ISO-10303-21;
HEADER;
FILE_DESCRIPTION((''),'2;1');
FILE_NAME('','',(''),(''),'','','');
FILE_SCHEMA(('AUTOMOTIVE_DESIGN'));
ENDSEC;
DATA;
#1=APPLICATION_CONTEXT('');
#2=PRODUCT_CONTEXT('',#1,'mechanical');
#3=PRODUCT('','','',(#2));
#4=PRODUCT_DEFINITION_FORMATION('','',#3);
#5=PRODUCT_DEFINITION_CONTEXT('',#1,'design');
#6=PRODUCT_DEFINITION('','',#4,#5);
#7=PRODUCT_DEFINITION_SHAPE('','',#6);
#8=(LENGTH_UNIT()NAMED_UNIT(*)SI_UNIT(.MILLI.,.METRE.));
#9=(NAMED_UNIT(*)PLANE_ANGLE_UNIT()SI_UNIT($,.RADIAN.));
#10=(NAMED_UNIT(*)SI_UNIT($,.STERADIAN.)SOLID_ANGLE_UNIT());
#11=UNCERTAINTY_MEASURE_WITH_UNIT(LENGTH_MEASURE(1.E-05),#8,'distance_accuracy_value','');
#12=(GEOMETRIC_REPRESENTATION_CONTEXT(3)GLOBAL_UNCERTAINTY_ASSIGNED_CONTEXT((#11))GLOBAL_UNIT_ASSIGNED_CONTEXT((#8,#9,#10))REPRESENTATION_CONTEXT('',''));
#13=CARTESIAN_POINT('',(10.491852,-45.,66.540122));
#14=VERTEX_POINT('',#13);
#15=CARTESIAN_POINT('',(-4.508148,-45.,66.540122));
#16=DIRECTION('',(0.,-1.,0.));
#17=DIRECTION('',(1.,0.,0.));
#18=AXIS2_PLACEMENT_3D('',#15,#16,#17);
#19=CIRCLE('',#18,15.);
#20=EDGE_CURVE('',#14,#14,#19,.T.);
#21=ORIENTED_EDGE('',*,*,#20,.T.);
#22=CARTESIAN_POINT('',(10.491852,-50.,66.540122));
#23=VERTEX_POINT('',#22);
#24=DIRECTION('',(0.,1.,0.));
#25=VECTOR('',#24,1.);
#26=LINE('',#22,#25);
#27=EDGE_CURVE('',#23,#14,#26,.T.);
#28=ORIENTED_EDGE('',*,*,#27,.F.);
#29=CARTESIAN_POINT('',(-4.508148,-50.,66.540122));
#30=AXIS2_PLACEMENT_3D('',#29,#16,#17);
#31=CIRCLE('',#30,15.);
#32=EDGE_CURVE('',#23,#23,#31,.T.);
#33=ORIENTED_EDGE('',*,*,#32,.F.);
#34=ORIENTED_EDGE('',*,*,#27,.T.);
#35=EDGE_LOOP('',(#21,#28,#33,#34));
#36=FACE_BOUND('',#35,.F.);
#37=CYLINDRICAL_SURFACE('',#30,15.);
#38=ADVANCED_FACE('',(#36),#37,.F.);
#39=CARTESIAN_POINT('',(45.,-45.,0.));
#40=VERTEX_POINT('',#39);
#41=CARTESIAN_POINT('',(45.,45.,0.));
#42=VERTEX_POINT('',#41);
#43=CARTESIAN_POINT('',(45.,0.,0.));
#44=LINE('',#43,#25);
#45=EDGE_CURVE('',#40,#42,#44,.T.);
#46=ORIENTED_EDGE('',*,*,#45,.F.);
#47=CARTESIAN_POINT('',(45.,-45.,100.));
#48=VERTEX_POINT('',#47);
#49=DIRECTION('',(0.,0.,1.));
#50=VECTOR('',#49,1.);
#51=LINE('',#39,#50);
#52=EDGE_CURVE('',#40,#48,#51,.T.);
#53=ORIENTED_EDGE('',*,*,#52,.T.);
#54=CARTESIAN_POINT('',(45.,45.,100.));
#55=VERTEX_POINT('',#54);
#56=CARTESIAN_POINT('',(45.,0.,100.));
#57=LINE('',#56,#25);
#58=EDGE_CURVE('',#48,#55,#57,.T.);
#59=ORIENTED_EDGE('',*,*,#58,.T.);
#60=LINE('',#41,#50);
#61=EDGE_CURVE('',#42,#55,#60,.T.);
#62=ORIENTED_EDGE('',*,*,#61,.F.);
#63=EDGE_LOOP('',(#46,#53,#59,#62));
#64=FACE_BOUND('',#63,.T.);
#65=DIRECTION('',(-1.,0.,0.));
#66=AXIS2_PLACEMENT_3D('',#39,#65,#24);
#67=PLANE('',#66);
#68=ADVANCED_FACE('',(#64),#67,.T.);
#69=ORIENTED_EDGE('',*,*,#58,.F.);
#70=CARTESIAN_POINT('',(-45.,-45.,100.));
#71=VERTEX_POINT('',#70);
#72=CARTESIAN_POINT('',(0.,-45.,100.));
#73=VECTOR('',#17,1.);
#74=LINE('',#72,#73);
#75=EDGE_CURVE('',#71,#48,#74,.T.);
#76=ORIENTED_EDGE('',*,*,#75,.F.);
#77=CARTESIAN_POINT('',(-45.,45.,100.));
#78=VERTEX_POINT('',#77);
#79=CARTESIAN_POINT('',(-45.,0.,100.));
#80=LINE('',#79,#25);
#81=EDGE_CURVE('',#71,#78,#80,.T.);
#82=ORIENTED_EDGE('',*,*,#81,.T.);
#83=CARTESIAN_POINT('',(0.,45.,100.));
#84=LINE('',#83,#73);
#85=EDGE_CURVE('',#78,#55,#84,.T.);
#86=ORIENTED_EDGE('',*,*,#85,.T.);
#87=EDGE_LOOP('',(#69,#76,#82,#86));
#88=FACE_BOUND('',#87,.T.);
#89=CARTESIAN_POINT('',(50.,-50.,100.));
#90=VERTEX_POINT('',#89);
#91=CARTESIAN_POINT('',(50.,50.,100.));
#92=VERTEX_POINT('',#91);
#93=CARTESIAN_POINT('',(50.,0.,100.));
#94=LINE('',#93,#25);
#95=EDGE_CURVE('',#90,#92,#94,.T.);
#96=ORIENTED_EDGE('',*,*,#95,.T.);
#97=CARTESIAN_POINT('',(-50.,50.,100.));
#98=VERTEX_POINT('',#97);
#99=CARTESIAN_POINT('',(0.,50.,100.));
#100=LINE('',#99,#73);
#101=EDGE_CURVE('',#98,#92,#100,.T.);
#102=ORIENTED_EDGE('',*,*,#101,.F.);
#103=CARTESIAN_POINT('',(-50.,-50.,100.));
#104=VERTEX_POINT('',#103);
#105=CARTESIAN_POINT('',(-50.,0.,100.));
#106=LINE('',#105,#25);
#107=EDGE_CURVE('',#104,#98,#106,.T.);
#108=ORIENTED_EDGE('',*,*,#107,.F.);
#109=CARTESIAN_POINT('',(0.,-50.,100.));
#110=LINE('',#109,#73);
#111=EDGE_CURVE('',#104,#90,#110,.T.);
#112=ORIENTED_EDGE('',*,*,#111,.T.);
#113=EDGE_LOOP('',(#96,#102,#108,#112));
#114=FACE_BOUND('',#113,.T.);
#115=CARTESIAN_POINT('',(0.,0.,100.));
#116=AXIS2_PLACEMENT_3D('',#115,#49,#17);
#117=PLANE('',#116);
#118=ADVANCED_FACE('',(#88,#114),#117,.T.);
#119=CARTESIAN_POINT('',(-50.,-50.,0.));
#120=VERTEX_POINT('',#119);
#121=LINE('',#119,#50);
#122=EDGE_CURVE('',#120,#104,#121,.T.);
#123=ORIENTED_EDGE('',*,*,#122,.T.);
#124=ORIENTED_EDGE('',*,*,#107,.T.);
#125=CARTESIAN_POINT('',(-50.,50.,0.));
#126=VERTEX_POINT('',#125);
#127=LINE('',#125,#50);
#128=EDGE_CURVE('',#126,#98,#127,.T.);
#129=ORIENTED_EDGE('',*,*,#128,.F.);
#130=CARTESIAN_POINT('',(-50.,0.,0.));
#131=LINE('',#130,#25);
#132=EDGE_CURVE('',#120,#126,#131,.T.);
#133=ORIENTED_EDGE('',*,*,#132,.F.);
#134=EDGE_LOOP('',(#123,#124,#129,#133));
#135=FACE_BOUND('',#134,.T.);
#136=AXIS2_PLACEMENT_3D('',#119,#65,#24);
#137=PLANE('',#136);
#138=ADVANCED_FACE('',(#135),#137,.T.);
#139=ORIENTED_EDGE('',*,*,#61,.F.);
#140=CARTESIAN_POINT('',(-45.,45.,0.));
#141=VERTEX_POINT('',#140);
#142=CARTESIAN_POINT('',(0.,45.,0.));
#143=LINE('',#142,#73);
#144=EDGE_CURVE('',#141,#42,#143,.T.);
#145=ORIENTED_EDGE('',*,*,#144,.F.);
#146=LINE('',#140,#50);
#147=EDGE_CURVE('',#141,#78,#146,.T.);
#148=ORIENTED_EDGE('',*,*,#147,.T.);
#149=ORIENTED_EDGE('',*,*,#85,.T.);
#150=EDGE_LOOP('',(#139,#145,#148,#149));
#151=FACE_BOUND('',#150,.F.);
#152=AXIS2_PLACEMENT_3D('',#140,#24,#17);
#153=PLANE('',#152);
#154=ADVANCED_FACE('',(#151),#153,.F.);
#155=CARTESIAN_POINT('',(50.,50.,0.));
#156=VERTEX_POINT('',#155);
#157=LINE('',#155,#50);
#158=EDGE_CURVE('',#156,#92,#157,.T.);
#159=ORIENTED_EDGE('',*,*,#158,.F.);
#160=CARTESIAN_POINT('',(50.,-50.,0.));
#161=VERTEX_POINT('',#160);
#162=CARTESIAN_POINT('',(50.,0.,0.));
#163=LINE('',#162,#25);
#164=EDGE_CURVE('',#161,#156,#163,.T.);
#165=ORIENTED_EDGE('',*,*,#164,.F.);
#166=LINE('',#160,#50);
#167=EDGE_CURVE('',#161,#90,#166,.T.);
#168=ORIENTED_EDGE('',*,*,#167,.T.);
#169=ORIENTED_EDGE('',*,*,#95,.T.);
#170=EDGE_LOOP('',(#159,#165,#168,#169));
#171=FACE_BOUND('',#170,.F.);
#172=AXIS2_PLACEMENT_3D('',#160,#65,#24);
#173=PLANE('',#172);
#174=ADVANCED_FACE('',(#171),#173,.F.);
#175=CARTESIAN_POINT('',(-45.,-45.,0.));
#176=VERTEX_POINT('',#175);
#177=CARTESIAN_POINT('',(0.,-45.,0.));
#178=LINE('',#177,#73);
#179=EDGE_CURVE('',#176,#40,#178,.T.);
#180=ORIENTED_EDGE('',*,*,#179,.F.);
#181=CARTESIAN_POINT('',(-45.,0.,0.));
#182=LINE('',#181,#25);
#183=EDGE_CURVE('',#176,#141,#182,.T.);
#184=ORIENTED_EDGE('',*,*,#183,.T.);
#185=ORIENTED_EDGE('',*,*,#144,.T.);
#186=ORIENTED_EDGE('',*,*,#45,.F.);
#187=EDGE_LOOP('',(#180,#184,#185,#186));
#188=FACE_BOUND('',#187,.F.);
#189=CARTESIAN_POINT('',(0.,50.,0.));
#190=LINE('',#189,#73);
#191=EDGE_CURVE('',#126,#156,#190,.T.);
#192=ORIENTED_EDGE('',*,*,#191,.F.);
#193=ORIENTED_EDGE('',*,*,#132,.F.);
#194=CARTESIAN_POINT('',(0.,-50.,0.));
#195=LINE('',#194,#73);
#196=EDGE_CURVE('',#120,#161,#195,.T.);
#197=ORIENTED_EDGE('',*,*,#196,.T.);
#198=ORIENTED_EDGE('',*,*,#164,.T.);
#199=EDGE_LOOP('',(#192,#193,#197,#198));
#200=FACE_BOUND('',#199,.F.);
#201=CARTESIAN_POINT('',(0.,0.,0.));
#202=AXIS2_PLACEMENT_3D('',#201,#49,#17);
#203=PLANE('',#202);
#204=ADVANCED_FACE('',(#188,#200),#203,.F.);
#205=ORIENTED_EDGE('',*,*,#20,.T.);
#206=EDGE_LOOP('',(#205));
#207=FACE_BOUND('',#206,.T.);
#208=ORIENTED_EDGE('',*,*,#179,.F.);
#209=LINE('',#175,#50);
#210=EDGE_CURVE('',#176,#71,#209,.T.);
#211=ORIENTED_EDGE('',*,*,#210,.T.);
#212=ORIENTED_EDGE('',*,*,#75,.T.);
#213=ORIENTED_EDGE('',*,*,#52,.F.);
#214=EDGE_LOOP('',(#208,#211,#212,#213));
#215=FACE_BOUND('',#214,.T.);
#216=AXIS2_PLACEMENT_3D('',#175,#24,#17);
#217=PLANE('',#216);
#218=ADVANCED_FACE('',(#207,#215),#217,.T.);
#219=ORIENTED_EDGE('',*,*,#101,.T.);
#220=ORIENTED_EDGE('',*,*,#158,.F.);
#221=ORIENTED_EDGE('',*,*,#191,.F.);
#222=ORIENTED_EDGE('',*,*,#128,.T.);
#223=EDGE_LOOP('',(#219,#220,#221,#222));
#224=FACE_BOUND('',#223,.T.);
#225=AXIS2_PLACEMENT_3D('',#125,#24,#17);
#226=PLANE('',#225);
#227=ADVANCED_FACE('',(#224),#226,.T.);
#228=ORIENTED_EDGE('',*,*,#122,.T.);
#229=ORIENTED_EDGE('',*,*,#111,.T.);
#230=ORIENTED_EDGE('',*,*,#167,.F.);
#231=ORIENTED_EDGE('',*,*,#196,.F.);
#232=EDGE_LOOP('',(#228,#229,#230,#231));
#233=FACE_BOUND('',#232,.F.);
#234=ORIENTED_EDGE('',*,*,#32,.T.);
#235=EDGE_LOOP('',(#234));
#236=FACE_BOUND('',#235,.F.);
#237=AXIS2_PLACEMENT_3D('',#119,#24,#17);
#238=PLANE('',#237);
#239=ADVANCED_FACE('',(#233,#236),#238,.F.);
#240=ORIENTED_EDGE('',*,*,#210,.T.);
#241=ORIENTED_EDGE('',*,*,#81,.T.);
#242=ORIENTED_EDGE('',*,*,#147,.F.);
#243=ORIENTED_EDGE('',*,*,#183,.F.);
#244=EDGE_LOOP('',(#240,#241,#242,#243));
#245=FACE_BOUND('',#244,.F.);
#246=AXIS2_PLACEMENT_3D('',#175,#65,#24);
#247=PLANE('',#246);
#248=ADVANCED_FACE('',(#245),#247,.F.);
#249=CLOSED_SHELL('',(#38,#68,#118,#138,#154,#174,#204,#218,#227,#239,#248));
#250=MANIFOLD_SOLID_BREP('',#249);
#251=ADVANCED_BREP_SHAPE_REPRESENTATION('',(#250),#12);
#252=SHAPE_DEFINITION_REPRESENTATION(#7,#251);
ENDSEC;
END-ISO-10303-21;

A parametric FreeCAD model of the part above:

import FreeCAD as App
import Part
import Sketcher
from FreeCAD import Vector
Q = App.Units.Quantity


def add_polygon(sketch, points):
    """Adds a closed chain of lines whose ends are joined by coincident constraints."""
    first, n = sketch.GeometryCount, len(points)
    for a, b in zip(points, points[1:] + points[:1]):
        sketch.addGeometry(Part.LineSegment(App.Vector(*a, 0), App.Vector(*b, 0)), False)
    for i in range(n):
        sketch.addConstraint(Sketcher.Constraint("Coincident", first + i, 2, first + (i + 1) % n, 1))

doc = App.newDocument("Part")
body = doc.addObject("PartDesign::Body", "Body")

# Sketch on XY plane
sketch1 = body.newObject("Sketcher::SketchObject", "Sketch")
sketch1.AttachmentSupport = (doc.getObject("XY_Plane"), [""])
sketch1.MapMode = "FlatFace"
add_polygon(sketch1, [(-50, 50), (-50, -50), (50, -50), (50, 50)])  # lines 0-3
add_polygon(sketch1, [(45, -45), (-45, -45), (-45, 45), (45, 45)])  # lines 4-7
sketch1.addConstraint(Sketcher.Constraint("Vertical", 0))
sketch1.addConstraint(Sketcher.Constraint("Horizontal", 1))
sketch1.addConstraint(Sketcher.Constraint("Vertical", 2))
sketch1.addConstraint(Sketcher.Constraint("Horizontal", 3))
sketch1.addConstraint(Sketcher.Constraint("Horizontal", 4))
sketch1.addConstraint(Sketcher.Constraint("Vertical", 5))
sketch1.addConstraint(Sketcher.Constraint("Horizontal", 6))
sketch1.addConstraint(Sketcher.Constraint("Vertical", 7))
sketch1.addConstraint(Sketcher.Constraint("Symmetric", 0, 2, 2, 2, -1, 1))
sketch1.addConstraint(Sketcher.Constraint("Symmetric", 4, 2, 6, 2, -1, 1))
sketch1.addConstraint(Sketcher.Constraint("Equal", 3, 0))
sketch1.addConstraint(Sketcher.Constraint("Equal", 6, 5))
sketch1.addConstraint(Sketcher.Constraint("DistanceX", 1, 1, 1, 2, Q("100 mm")))
sketch1.addConstraint(Sketcher.Constraint("DistanceX", 4, 2, 4, 1, Q("90 mm")))
pad1 = body.newObject("PartDesign::Pad", "Pad")
pad1.Profile = sketch1
pad1.Length = 100

# Sketch on XZ plane
sketch2 = body.newObject("Sketcher::SketchObject", "Sketch001")
sketch2.AttachmentSupport = (doc.getObject("XZ_Plane"), [""])
sketch2.MapMode = "FlatFace"
sketch2.AttachmentOffset = App.Placement(Vector(0, 0, 50), App.Rotation())
sketch2.addGeometry(Part.Circle(Vector(-5, 68, 0), Vector(0, 0, 1), 15), False)
sketch2.addConstraint(Sketcher.Constraint("Diameter", 0, Q("30 mm")))
sketch2.addConstraint(Sketcher.Constraint("DistanceX", 0, 3, -1, 1, Q("4.887418 mm")))
sketch2.addConstraint(Sketcher.Constraint("DistanceY", -1, 1, 0, 3, Q("68.32698 mm")))
pocket1 = body.newObject("PartDesign::Pocket", "Pocket")
pocket1.Profile = sketch2
pocket1.Length = 10
pocket1.Reversed = True

# Sketch on XZ plane
sketch3 = body.newObject("Sketcher::SketchObject", "Sketch002")
sketch3.AttachmentSupport = (doc.getObject("XZ_Plane"), [""])
sketch3.MapMode = "FlatFace"
sketch3.AttachmentOffset = App.Placement(Vector(0, 0, 50), App.Rotation())
sketch3.addGeometry(Part.Circle(Vector(-5, 67, 0), Vector(0, 0, 1), 15), False)
sketch3.addConstraint(Sketcher.Constraint("Diameter", 0, Q("30 mm")))
sketch3.addConstraint(Sketcher.Constraint("DistanceX", 0, 3, -1, 1, Q("4.508148 mm")))
sketch3.addConstraint(Sketcher.Constraint("DistanceY", -1, 1, 0, 3, Q("66.540122 mm")))
pocket2 = body.newObject("PartDesign::Pocket", "Pocket001")
pocket2.Profile = sketch3
pocket2.Length = 25

doc.recompute()
